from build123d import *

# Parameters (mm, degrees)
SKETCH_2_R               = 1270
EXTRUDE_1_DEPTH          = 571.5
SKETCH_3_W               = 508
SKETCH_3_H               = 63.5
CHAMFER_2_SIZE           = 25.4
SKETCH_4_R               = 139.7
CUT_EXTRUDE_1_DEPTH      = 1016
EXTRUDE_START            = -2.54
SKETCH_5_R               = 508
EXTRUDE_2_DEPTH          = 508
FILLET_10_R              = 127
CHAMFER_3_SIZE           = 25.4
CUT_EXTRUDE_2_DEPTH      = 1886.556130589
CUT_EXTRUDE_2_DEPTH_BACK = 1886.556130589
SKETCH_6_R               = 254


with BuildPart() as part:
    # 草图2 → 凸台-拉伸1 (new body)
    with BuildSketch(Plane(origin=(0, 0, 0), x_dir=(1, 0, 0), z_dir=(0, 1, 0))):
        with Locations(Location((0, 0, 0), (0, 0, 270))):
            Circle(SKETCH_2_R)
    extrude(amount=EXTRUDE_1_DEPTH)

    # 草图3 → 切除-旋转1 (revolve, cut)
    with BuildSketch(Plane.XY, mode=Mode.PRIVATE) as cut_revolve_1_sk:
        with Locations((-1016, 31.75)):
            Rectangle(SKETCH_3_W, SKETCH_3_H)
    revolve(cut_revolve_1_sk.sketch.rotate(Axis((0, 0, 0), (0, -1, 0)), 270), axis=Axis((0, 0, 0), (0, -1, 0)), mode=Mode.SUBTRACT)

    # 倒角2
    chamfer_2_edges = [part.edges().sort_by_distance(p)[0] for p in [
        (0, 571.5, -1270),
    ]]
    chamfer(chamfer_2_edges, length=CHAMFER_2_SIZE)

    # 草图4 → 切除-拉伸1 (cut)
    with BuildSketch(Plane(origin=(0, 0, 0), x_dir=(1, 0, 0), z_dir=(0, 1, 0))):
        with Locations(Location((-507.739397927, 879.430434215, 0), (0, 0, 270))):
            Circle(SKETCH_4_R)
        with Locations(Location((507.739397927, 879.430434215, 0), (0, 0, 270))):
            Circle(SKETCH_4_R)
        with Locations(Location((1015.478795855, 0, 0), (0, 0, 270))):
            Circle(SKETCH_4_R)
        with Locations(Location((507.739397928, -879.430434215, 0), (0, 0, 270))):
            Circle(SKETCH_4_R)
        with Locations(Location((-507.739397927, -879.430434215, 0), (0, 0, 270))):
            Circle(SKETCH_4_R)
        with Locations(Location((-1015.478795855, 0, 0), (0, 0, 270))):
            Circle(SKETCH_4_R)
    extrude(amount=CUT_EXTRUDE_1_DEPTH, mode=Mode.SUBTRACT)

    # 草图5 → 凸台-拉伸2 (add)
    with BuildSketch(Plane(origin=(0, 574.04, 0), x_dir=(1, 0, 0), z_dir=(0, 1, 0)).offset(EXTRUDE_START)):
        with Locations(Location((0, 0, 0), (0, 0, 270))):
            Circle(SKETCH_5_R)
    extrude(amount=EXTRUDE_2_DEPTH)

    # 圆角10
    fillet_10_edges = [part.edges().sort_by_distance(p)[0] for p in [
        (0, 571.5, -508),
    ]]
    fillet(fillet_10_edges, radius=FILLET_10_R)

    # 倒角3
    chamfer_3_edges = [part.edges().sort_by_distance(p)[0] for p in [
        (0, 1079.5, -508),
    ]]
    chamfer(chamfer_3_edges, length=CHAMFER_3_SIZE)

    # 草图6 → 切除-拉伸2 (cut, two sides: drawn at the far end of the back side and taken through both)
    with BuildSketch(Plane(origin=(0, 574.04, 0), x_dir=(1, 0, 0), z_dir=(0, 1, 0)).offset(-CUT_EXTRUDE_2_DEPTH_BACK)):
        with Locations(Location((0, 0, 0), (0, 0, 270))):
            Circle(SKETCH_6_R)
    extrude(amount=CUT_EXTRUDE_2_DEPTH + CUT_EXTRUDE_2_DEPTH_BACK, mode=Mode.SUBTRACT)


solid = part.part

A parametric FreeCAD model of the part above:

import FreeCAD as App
import Part
import Sketcher

V = App.Vector
Q = App.Units.Quantity


def edges_at(feature, points):
    """Names of the edges that pass closest to the given points."""
    edges = feature.Shape.Edges
    near = lambda p: min(range(len(edges)), key=lambda i: edges[i].distToShape(Part.Vertex(*p))[0])
    return sorted({f"Edge{near(p) + 1}" for p in points})

doc = App.newDocument("Part")
body = doc.addObject("PartDesign::Body", "Body")

sketch1 = doc.addObject("Sketcher::SketchObject", "Sketch")
body.addObject(sketch1)
sketch1.AttachmentSupport = (doc.XZ_Plane, [""])
sketch1.MapMode = "FlatFace"
sketch1.addGeometry(Part.Circle(V(0, 0, 0), V(0, 0, 1), 1270), False)
sketch1.addConstraint([
    Sketcher.Constraint("Coincident", 0, 3, -1, 1),
    Sketcher.Constraint("Diameter", 0, Q("100 in")),
])
pad1 = doc.addObject("PartDesign::Pad", "Pad")
body.addObject(pad1)
pad1.Profile = sketch1
pad1.Length = Q("22.5 in")
pad1.Reversed = True

sketch2 = doc.addObject("Sketcher::SketchObject", "Sketch001")
body.addObject(sketch2)
sketch2.AttachmentSupport = (doc.XY_Plane, [""])
sketch2.MapMode = "FlatFace"
sketch2.addGeometry([
    Part.LineSegment(V(-1270, 63.5, 0), V(-1270, 0, 0)),
    Part.LineSegment(V(-1270, 0, 0), V(-762, 0, 0)),
    Part.LineSegment(V(-762, 0, 0), V(-762, 63.5, 0)),
    Part.LineSegment(V(-762, 63.5, 0), V(-1270, 63.5, 0)),
], False)
sketch2.addConstraint([
    Sketcher.Constraint("Coincident", 0, 2, 1, 1),
    Sketcher.Constraint("Coincident", 1, 2, 2, 1),
    Sketcher.Constraint("Coincident", 2, 2, 3, 1),
    Sketcher.Constraint("Coincident", 3, 2, 0, 1),
    Sketcher.Constraint("Vertical", 0),
    Sketcher.Constraint("Horizontal", 1),
    Sketcher.Constraint("Vertical", 2),
    Sketcher.Constraint("Horizontal", 3),
    Sketcher.Constraint("PointOnObject", 0, 2, -1),
    Sketcher.Constraint("DistanceX", 1, 1, 1, 2, Q("20 in")),
    Sketcher.Constraint("DistanceY", 0, 2, 0, 1, Q("2.5 in")),
    Sketcher.Constraint("DistanceX", 0, 2, -1, 1, Q("50 in")),
])
groove = doc.addObject("PartDesign::Groove", "Groove")
body.addObject(groove)
groove.Profile = sketch2
groove.ReferenceAxis = (sketch2, ["V_Axis"])
groove.Angle = 360
doc.recompute()

chamfer = doc.addObject("PartDesign::Chamfer", "Chamfer")
body.addObject(chamfer)
chamfer.Base = (groove, edges_at(groove, [(0, 571.5, -1270)]))
chamfer.Size = Q("1 in")

sketch3 = doc.addObject("Sketcher::SketchObject", "Sketch002")
body.addObject(sketch3)
sketch3.AttachmentSupport = (doc.XZ_Plane, [""])
sketch3.MapMode = "FlatFace"
sketch3.addGeometry([
    Part.Circle(V(-507.739398, -879.430434, 0), V(0, 0, 1), 139.7),
    Part.Circle(V(507.739398, -879.430434, 0), V(0, 0, 1), 139.7),
    Part.Circle(V(1015.478796, 0, 0), V(0, 0, 1), 139.7),
    Part.Circle(V(507.739398, 879.430434, 0), V(0, 0, 1), 139.7),
    Part.Circle(V(-507.739398, 879.430434, 0), V(0, 0, 1), 139.7),
    Part.Circle(V(-1015.478796, 0, 0), V(0, 0, 1), 139.7),
], False)
sketch3.addConstraint([
    Sketcher.Constraint("Equal", 0, 1),
    Sketcher.Constraint("Equal", 1, 2),
    Sketcher.Constraint("Equal", 2, 3),
    Sketcher.Constraint("Equal", 3, 4),
    Sketcher.Constraint("Equal", 4, 5),
    Sketcher.Constraint("Symmetric", 0, 3, 3, 3, -1, 1),
    Sketcher.Constraint("Symmetric", 1, 3, 4, 3, -1, 1),
    Sketcher.Constraint("Symmetric", 2, 3, 5, 3, -1, 1),
    Sketcher.Constraint("Symmetric", 0, 3, 1, 3, -2),
    Sketcher.Constraint("PointOnObject", 2, 3, -1),
    Sketcher.Constraint("Diameter", 0, Q("11 in")),
    Sketcher.Constraint("DistanceY", 1, 3, 3, 3, 1758.860868),
    Sketcher.Constraint("DistanceX", 5, 3, 2, 3, 2030.957592),
    Sketcher.Constraint("DistanceX", 0, 3, -1, 1, 507.739398),
])
pocket1 = doc.addObject("PartDesign::Pocket", "Pocket")
body.addObject(pocket1)
pocket1.Profile = sketch3
pocket1.Length = Q("40 in")

sketch4 = doc.addObject("Sketcher::SketchObject", "Sketch003")
body.addObject(sketch4)
sketch4.AttachmentSupport = (doc.XZ_Plane, [""])
sketch4.MapMode = "FlatFace"
sketch4.AttachmentOffset = App.Placement(V(0, 0, -22.5 * 25.4), App.Rotation())
sketch4.addGeometry(Part.Circle(V(0, 0, 0), V(0, 0, 1), 508), False)
sketch4.addConstraint([
    Sketcher.Constraint("Coincident", 0, 3, -1, 1),
    Sketcher.Constraint("Diameter", 0, Q("40 in")),
])
pad2 = doc.addObject("PartDesign::Pad", "Pad001")
body.addObject(pad2)
pad2.Profile = sketch4
pad2.Length = Q("20 in")
pad2.Reversed = True
doc.recompute()

fillet = doc.addObject("PartDesign::Fillet", "Fillet")
body.addObject(fillet)
fillet.Base = (pad2, edges_at(pad2, [(0, 571.5, -508)]))
fillet.Radius = Q("5 in")
doc.recompute()

chamfer2 = doc.addObject("PartDesign::Chamfer", "Chamfer001")
body.addObject(chamfer2)
chamfer2.Base = (fillet, edges_at(fillet, [(0, 1079.5, -508)]))
chamfer2.Size = Q("1 in")

sketch5 = doc.addObject("Sketcher::SketchObject", "Sketch004")
body.addObject(sketch5)
sketch5.AttachmentSupport = (doc.XZ_Plane, [""])
sketch5.MapMode = "FlatFace"
sketch5.AttachmentOffset = App.Placement(V(0, 0, -22.6 * 25.4), App.Rotation())
sketch5.addGeometry(Part.Circle(V(0, 0, 0), V(0, 0, 1), 254), False)
sketch5.addConstraint([
    Sketcher.Constraint("Coincident", 0, 3, -1, 1),
    Sketcher.Constraint("Diameter", 0, Q("20 in")),
])
pocket2 = doc.addObject("PartDesign::Pocket", "Pocket001")
body.addObject(pocket2)
pocket2.Profile = sketch5
pocket2.Type = "ThroughAll"
pocket2.Midplane = True

doc.recompute()
